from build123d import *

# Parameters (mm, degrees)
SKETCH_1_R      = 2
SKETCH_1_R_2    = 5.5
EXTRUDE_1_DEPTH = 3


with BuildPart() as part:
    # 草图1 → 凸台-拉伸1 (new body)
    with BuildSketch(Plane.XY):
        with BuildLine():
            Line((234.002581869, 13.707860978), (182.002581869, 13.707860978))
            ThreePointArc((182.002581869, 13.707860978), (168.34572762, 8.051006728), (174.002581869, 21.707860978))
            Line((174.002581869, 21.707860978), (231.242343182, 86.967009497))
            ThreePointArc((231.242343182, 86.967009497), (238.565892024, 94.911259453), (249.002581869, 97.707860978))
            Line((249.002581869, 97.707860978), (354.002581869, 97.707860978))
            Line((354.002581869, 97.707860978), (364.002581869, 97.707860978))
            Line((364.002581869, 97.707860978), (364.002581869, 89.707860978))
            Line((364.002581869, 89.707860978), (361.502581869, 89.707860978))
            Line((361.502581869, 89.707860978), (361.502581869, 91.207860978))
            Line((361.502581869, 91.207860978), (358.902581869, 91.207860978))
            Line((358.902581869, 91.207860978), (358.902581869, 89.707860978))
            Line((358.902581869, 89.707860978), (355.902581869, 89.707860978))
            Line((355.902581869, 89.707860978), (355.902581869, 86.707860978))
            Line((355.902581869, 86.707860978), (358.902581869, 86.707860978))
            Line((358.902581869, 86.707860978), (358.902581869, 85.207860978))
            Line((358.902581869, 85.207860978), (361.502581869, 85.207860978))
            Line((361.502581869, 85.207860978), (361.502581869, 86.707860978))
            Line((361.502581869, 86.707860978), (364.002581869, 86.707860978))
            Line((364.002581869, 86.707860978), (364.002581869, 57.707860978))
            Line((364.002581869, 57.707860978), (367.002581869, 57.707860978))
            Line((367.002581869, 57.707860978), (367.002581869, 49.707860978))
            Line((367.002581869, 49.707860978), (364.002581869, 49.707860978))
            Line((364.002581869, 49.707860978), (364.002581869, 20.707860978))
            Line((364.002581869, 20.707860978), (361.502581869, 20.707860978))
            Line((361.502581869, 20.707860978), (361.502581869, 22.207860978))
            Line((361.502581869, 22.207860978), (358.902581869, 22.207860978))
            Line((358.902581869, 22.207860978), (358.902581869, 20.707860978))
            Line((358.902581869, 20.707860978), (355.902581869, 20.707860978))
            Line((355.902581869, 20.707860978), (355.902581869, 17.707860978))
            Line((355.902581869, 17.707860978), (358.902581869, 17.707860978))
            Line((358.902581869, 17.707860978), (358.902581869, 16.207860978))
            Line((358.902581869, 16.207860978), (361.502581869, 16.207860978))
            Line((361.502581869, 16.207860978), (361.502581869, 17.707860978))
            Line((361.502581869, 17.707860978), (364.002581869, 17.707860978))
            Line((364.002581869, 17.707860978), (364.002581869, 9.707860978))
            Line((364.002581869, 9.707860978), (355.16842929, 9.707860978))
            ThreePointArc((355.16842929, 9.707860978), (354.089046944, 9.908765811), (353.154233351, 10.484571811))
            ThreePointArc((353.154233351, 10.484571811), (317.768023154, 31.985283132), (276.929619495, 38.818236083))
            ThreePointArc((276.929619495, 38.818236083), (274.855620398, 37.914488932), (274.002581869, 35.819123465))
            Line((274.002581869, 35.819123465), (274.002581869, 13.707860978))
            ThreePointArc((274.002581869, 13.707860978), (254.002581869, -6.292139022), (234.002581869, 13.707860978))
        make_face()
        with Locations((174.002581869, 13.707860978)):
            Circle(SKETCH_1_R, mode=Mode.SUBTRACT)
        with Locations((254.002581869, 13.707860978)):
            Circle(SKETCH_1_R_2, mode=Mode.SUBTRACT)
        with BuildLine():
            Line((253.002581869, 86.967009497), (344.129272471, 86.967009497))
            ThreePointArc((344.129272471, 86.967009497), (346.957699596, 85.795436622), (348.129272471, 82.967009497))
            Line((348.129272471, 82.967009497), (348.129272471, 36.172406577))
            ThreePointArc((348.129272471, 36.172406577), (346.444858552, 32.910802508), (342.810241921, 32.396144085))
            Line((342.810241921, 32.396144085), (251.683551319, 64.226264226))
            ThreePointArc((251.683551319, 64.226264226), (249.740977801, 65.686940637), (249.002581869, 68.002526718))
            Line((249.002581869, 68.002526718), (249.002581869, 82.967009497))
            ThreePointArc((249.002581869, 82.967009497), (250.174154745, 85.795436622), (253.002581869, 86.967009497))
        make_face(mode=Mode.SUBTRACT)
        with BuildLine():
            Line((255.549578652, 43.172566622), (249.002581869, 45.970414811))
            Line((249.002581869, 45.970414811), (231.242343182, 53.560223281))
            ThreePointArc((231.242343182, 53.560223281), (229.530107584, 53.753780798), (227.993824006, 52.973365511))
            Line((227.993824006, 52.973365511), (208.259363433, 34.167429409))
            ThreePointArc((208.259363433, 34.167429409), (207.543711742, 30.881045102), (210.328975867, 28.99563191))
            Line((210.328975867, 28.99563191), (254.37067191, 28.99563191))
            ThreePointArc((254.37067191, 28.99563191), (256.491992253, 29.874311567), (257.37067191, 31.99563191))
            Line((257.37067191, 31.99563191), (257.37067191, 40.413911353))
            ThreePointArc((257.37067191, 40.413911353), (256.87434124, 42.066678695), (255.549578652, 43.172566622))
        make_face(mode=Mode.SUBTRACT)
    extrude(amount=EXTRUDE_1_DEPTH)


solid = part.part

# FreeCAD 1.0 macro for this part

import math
import FreeCAD as App
import Part
import Sketcher

V = App.Vector
Q = App.Units.Quantity

doc = App.newDocument("Part")
body = doc.addObject("PartDesign::Body", "Body")

sketch1 = doc.addObject("Sketcher::SketchObject", "Sketch")
body.addObject(sketch1)
sketch1.AttachmentSupport = (doc.XY_Plane, [""])
sketch1.MapMode = "FlatFace"
sketch1.addGeometry(Part.LineSegment(V(182, 13.7, 0), V(234, 13.7, 0)), False)
sketch1.addGeometry(Part.ArcOfCircle(Part.Circle(V(254, 13.7, 0), V(0, 0, 1), 20), math.radians(180), math.radians(360)), False)
sketch1.addGeometry(Part.LineSegment(V(274, 13.7, 0), V(274, 35.8, 0)), False)
sketch1.addGeometry(Part.ArcOfCircle(Part.Circle(V(277, 35.8, 0), V(0, 0, 1), 3), math.radians(91), math.radians(180)), False)
sketch1.addGeometry(Part.ArcOfCircle(Part.Circle(V(279.6, -70.7, 0), V(0, 0, 1), 109.6), math.radians(48), math.radians(91)), False)
sketch1.addGeometry(Part.ArcOfCircle(Part.Circle(V(355.2, 12.7, 0), V(0, 0, 1), 3), math.radians(-132), math.radians(-90)), False)
sketch1.addGeometry(Part.LineSegment(V(355.2, 9.7, 0), V(364, 9.7, 0)), False)
sketch1.addGeometry(Part.LineSegment(V(364, 9.7, 0), V(364, 17.7, 0)), False)
sketch1.addGeometry(Part.LineSegment(V(364, 17.7, 0), V(361.5, 17.7, 0)), False)
sketch1.addGeometry(Part.LineSegment(V(361.5, 17.7, 0), V(361.5, 16.2, 0)), False)
sketch1.addGeometry(Part.LineSegment(V(361.5, 16.2, 0), V(358.9, 16.2, 0)), False)
sketch1.addGeometry(Part.LineSegment(V(358.9, 16.2, 0), V(358.9, 17.7, 0)), False)
sketch1.addGeometry(Part.LineSegment(V(358.9, 17.7, 0), V(355.9, 17.7, 0)), False)
sketch1.addGeometry(Part.LineSegment(V(355.9, 17.7, 0), V(355.9, 20.7, 0)), False)
sketch1.addGeometry(Part.LineSegment(V(355.9, 20.7, 0), V(358.9, 20.7, 0)), False)
sketch1.addGeometry(Part.LineSegment(V(358.9, 20.7, 0), V(358.9, 22.2, 0)), False)
sketch1.addGeometry(Part.LineSegment(V(358.9, 22.2, 0), V(361.5, 22.2, 0)), False)
sketch1.addGeometry(Part.LineSegment(V(361.5, 22.2, 0), V(361.5, 20.7, 0)), False)
sketch1.addGeometry(Part.LineSegment(V(361.5, 20.7, 0), V(364, 20.7, 0)), False)
sketch1.addGeometry(Part.LineSegment(V(364, 20.7, 0), V(364, 49.7, 0)), False)
sketch1.addGeometry(Part.LineSegment(V(364, 49.7, 0), V(367, 49.7, 0)), False)
sketch1.addGeometry(Part.LineSegment(V(367, 49.7, 0), V(367, 57.7, 0)), False)
sketch1.addGeometry(Part.LineSegment(V(367, 57.7, 0), V(364, 57.7, 0)), False)
sketch1.addGeometry(Part.LineSegment(V(364, 57.7, 0), V(364, 86.7, 0)), False)
sketch1.addGeometry(Part.LineSegment(V(364, 86.7, 0), V(361.5, 86.7, 0)), False)
sketch1.addGeometry(Part.LineSegment(V(361.5, 86.7, 0), V(361.5, 85.2, 0)), False)
sketch1.addGeometry(Part.LineSegment(V(361.5, 85.2, 0), V(358.9, 85.2, 0)), False)
sketch1.addGeometry(Part.LineSegment(V(358.9, 85.2, 0), V(358.9, 86.7, 0)), False)
sketch1.addGeometry(Part.LineSegment(V(358.9, 86.7, 0), V(355.9, 86.7, 0)), False)
sketch1.addGeometry(Part.LineSegment(V(355.9, 86.7, 0), V(355.9, 89.7, 0)), False)
sketch1.addGeometry(Part.LineSegment(V(355.9, 89.7, 0), V(358.9, 89.7, 0)), False)
sketch1.addGeometry(Part.LineSegment(V(358.9, 89.7, 0), V(358.9, 91.2, 0)), False)
sketch1.addGeometry(Part.LineSegment(V(358.9, 91.2, 0), V(361.5, 91.2, 0)), False)
sketch1.addGeometry(Part.LineSegment(V(361.5, 91.2, 0), V(361.5, 89.7, 0)), False)
sketch1.addGeometry(Part.LineSegment(V(361.5, 89.7, 0), V(364, 89.7, 0)), False)
sketch1.addGeometry(Part.LineSegment(V(364, 89.7, 0), V(364, 97.7, 0)), False)
sketch1.addGeometry(Part.LineSegment(V(364, 97.7, 0), V(249, 97.7, 0)), False)
sketch1.addGeometry(Part.ArcOfCircle(Part.Circle(V(248.6, 78.3, 0), V(0, 0, 1), 19.4), math.radians(89), math.radians(153)), False)
sketch1.addGeometry(Part.LineSegment(V(231.2, 87, 0), V(174, 21.7, 0)), False)
sketch1.addGeometry(Part.ArcOfCircle(Part.Circle(V(174, 13.7, 0), V(0, 0, 1), 8), math.radians(90), math.radians(360)), False)
sketch1.addGeometry(Part.Circle(V(254, 13.7, 0), V(0, 0, 1), 5.5), False)
sketch1.addGeometry(Part.Circle(V(174, 13.7, 0), V(0, 0, 1), 2), False)
sketch1.addGeometry(Part.ArcOfCircle(Part.Circle(V(254.4, 40.4, 0), V(0, 0, 1), 3), math.radians(0), math.radians(67)), False)
sketch1.addGeometry(Part.LineSegment(V(257.4, 40.4, 0), V(257.4, 32, 0)), False)
sketch1.addGeometry(Part.ArcOfCircle(Part.Circle(V(254.4, 32, 0), V(0, 0, 1), 3), math.radians(-90), math.radians(0)), False)
sketch1.addGeometry(Part.LineSegment(V(254.4, 29, 0), V(210.3, 29, 0)), False)
sketch1.addGeometry(Part.ArcOfCircle(Part.Circle(V(210.3, 32, 0), V(0, 0, 1), 3), math.radians(134), math.radians(270)), False)
sketch1.addGeometry(Part.LineSegment(V(208.3, 34.2, 0), V(228, 53, 0)), False)
sketch1.addGeometry(Part.ArcOfCircle(Part.Circle(V(230.1, 50.8, 0), V(0, 0, 1), 3), math.radians(67), math.radians(134)), False)
sketch1.addGeometry(Part.LineSegment(V(231.2, 53.6, 0), V(249, 46, 0)), False)
sketch1.addGeometry(Part.LineSegment(V(249, 46, 0), V(255.5, 43.2, 0)), False)
sketch1.addGeometry(Part.LineSegment(V(253, 87, 0), V(344.1, 87, 0)), False)
sketch1.addGeometry(Part.ArcOfCircle(Part.Circle(V(344.1, 83, 0), V(0, 0, 1), 4), math.radians(0), math.radians(90)), False)
sketch1.addGeometry(Part.LineSegment(V(348.1, 83, 0), V(348.1, 36.2, 0)), False)
sketch1.addGeometry(Part.ArcOfCircle(Part.Circle(V(344.1, 36.2, 0), V(0, 0, 1), 4), math.radians(-109), math.radians(0)), False)
sketch1.addGeometry(Part.LineSegment(V(342.8, 32.4, 0), V(251.7, 64.2, 0)), False)
sketch1.addGeometry(Part.ArcOfCircle(Part.Circle(V(253, 68, 0), V(0, 0, 1), 4), math.radians(-180), math.radians(-109)), False)
sketch1.addGeometry(Part.LineSegment(V(249, 68, 0), V(249, 83, 0)), False)
sketch1.addGeometry(Part.ArcOfCircle(Part.Circle(V(253, 83, 0), V(0, 0, 1), 4), math.radians(90), math.radians(180)), False)
sketch1.addConstraint(Sketcher.Constraint("Coincident", 0, 2, 1, 1))
sketch1.addConstraint(Sketcher.Constraint("Tangent", 1, 2, 2, 1))
sketch1.addConstraint(Sketcher.Constraint("Tangent", 2, 2, 3, 2))
sketch1.addConstraint(Sketcher.Constraint("Tangent", 3, 1, 4, 2))
sketch1.addConstraint(Sketcher.Constraint("Tangent", 4, 1, 5, 1))
sketch1.addConstraint(Sketcher.Constraint("Tangent", 5, 2, 6, 1))
sketch1.addConstraint(Sketcher.Constraint("Coincident", 6, 2, 7, 1))
sketch1.addConstraint(Sketcher.Constraint("Coincident", 7, 2, 8, 1))
sketch1.addConstraint(Sketcher.Constraint("Coincident", 8, 2, 9, 1))
sketch1.addConstraint(Sketcher.Constraint("Coincident", 9, 2, 10, 1))
sketch1.addConstraint(Sketcher.Constraint("Coincident", 10, 2, 11, 1))
sketch1.addConstraint(Sketcher.Constraint("Coincident", 11, 2, 12, 1))
sketch1.addConstraint(Sketcher.Constraint("Coincident", 12, 2, 13, 1))
sketch1.addConstraint(Sketcher.Constraint("Coincident", 13, 2, 14, 1))
sketch1.addConstraint(Sketcher.Constraint("Coincident", 14, 2, 15, 1))
sketch1.addConstraint(Sketcher.Constraint("Coincident", 15, 2, 16, 1))
sketch1.addConstraint(Sketcher.Constraint("Coincident", 16, 2, 17, 1))
sketch1.addConstraint(Sketcher.Constraint("Coincident", 17, 2, 18, 1))
sketch1.addConstraint(Sketcher.Constraint("Coincident", 18, 2, 19, 1))
sketch1.addConstraint(Sketcher.Constraint("Coincident", 19, 2, 20, 1))
sketch1.addConstraint(Sketcher.Constraint("Coincident", 20, 2, 21, 1))
sketch1.addConstraint(Sketcher.Constraint("Coincident", 21, 2, 22, 1))
sketch1.addConstraint(Sketcher.Constraint("Coincident", 22, 2, 23, 1))
sketch1.addConstraint(Sketcher.Constraint("Coincident", 23, 2, 24, 1))
sketch1.addConstraint(Sketcher.Constraint("Coincident", 24, 2, 25, 1))
sketch1.addConstraint(Sketcher.Constraint("Coincident", 25, 2, 26, 1))
sketch1.addConstraint(Sketcher.Constraint("Coincident", 26, 2, 27, 1))
sketch1.addConstraint(Sketcher.Constraint("Coincident", 27, 2, 28, 1))
sketch1.addConstraint(Sketcher.Constraint("Coincident", 28, 2, 29, 1))
sketch1.addConstraint(Sketcher.Constraint("Coincident", 29, 2, 30, 1))
sketch1.addConstraint(Sketcher.Constraint("Coincident", 30, 2, 31, 1))
sketch1.addConstraint(Sketcher.Constraint("Coincident", 31, 2, 32, 1))
sketch1.addConstraint(Sketcher.Constraint("Coincident", 32, 2, 33, 1))
sketch1.addConstraint(Sketcher.Constraint("Coincident", 33, 2, 34, 1))
sketch1.addConstraint(Sketcher.Constraint("Coincident", 34, 2, 35, 1))
sketch1.addConstraint(Sketcher.Constraint("Coincident", 35, 2, 36, 1))
sketch1.addConstraint(Sketcher.Constraint("Coincident", 36, 2, 37, 1))
sketch1.addConstraint(Sketcher.Constraint("Coincident", 37, 2, 38, 1))
sketch1.addConstraint(Sketcher.Constraint("Coincident", 38, 2, 39, 1))
sketch1.addConstraint(Sketcher.Constraint("Coincident", 39, 2, 0, 1))
sketch1.addConstraint(Sketcher.Constraint("Tangent", 42, 1, 43, 1))
sketch1.addConstraint(Sketcher.Constraint("Tangent", 43, 2, 44, 2))
sketch1.addConstraint(Sketcher.Constraint("Tangent", 44, 1, 45, 1))
sketch1.addConstraint(Sketcher.Constraint("Tangent", 45, 2, 46, 2))
sketch1.addConstraint(Sketcher.Constraint("Tangent", 46, 1, 47, 1))
sketch1.addConstraint(Sketcher.Constraint("Tangent", 47, 2, 48, 2))
sketch1.addConstraint(Sketcher.Constraint("Tangent", 48, 1, 49, 1))
sketch1.addConstraint(Sketcher.Constraint("Coincident", 49, 2, 50, 1))
sketch1.addConstraint(Sketcher.Constraint("Tangent", 50, 2, 42, 2))
sketch1.addConstraint(Sketcher.Constraint("Tangent", 51, 2, 52, 2))
sketch1.addConstraint(Sketcher.Constraint("Tangent", 52, 1, 53, 1))
sketch1.addConstraint(Sketcher.Constraint("Tangent", 53, 2, 54, 2))
sketch1.addConstraint(Sketcher.Constraint("Tangent", 54, 1, 55, 1))
sketch1.addConstraint(Sketcher.Constraint("Tangent", 55, 2, 56, 2))
sketch1.addConstraint(Sketcher.Constraint("Tangent", 56, 1, 57, 1))
sketch1.addConstraint(Sketcher.Constraint("Tangent", 57, 2, 58, 2))
sketch1.addConstraint(Sketcher.Constraint("Tangent", 58, 1, 51, 1))
sketch1.addConstraint(Sketcher.Constraint("Horizontal", 0))
sketch1.addConstraint(Sketcher.Constraint("Vertical", 2))
sketch1.addConstraint(Sketcher.Constraint("Horizontal", 6))
sketch1.addConstraint(Sketcher.Constraint("Vertical", 7))
sketch1.addConstraint(Sketcher.Constraint("Horizontal", 8))
sketch1.addConstraint(Sketcher.Constraint("Vertical", 9))
sketch1.addConstraint(Sketcher.Constraint("Horizontal", 10))
sketch1.addConstraint(Sketcher.Constraint("Vertical", 11))
sketch1.addConstraint(Sketcher.Constraint("Horizontal", 12))
sketch1.addConstraint(Sketcher.Constraint("Vertical", 13))
sketch1.addConstraint(Sketcher.Constraint("Horizontal", 14))
sketch1.addConstraint(Sketcher.Constraint("Vertical", 15))
sketch1.addConstraint(Sketcher.Constraint("Horizontal", 16))
sketch1.addConstraint(Sketcher.Constraint("Vertical", 17))
sketch1.addConstraint(Sketcher.Constraint("Horizontal", 18))
sketch1.addConstraint(Sketcher.Constraint("Vertical", 19))
sketch1.addConstraint(Sketcher.Constraint("Horizontal", 20))
sketch1.addConstraint(Sketcher.Constraint("Vertical", 21))
sketch1.addConstraint(Sketcher.Constraint("Horizontal", 22))
sketch1.addConstraint(Sketcher.Constraint("Vertical", 23))
sketch1.addConstraint(Sketcher.Constraint("Horizontal", 24))
sketch1.addConstraint(Sketcher.Constraint("Vertical", 25))
sketch1.addConstraint(Sketcher.Constraint("Horizontal", 26))
sketch1.addConstraint(Sketcher.Constraint("Vertical", 27))
sketch1.addConstraint(Sketcher.Constraint("Horizontal", 28))
sketch1.addConstraint(Sketcher.Constraint("Vertical", 29))
sketch1.addConstraint(Sketcher.Constraint("Horizontal", 30))
sketch1.addConstraint(Sketcher.Constraint("Vertical", 31))
sketch1.addConstraint(Sketcher.Constraint("Horizontal", 32))
sketch1.addConstraint(Sketcher.Constraint("Vertical", 33))
sketch1.addConstraint(Sketcher.Constraint("Horizontal", 34))
sketch1.addConstraint(Sketcher.Constraint("Vertical", 35))
sketch1.addConstraint(Sketcher.Constraint("Horizontal", 36))
sketch1.addConstraint(Sketcher.Constraint("Vertical", 43))
sketch1.addConstraint(Sketcher.Constraint("Horizontal", 45))
sketch1.addConstraint(Sketcher.Constraint("Horizontal", 51))
sketch1.addConstraint(Sketcher.Constraint("Vertical", 53))
sketch1.addConstraint(Sketcher.Constraint("Vertical", 57))
sketch1.addConstraint(Sketcher.Constraint("Coincident", 40, 3, 1, 3))
sketch1.addConstraint(Sketcher.Constraint("Coincident", 41, 3, 39, 3))
sketch1.addConstraint(Sketcher.Constraint("Equal", 3, 5))
sketch1.addConstraint(Sketcher.Constraint("Equal", 5, 42))
sketch1.addConstraint(Sketcher.Constraint("Equal", 42, 44))
sketch1.addConstraint(Sketcher.Constraint("Equal", 44, 46))
sketch1.addConstraint(Sketcher.Constraint("Equal", 46, 48))
sketch1.addConstraint(Sketcher.Constraint("Equal", 52, 54))
sketch1.addConstraint(Sketcher.Constraint("Equal", 54, 56))
sketch1.addConstraint(Sketcher.Constraint("Equal", 56, 58))
sketch1.addConstraint(Sketcher.Constraint("Parallel", 49, 50))
sketch1.addConstraint(Sketcher.Constraint("Horizontal", 1, 3, 39, 3))
sketch1.addConstraint(Sketcher.Constraint("Horizontal", 41, 3, 0, 2))
sketch1.addConstraint(Sketcher.Constraint("Horizontal", 8, 2, 11, 2))
sketch1.addConstraint(Sketcher.Constraint("Horizontal", 14, 2, 17, 2))
sketch1.addConstraint(Sketcher.Constraint("Horizontal", 24, 2, 27, 2))
sketch1.addConstraint(Sketcher.Constraint("Horizontal", 30, 2, 33, 2))
sketch1.addConstraint(Sketcher.Constraint("Horizontal", 37, 2, 51, 2))
sketch1.addConstraint(Sketcher.Constraint("Vertical", 11, 2, 14, 2))
sketch1.addConstraint(Sketcher.Constraint("Vertical", 9, 2, 16, 2))
sketch1.addConstraint(Sketcher.Constraint("Vertical", 7, 2, 18, 2))
sketch1.addConstraint(Sketcher.Constraint("Vertical", 19, 2, 22, 2))
sketch1.addConstraint(Sketcher.Constraint("Vertical", 17, 2, 24, 2))
sketch1.addConstraint(Sketcher.Constraint("Vertical", 15, 2, 26, 2))
sketch1.addConstraint(Sketcher.Constraint("Vertical", 13, 2, 28, 2))
sketch1.addConstraint(Sketcher.Constraint("Vertical", 27, 2, 30, 2))
sketch1.addConstraint(Sketcher.Constraint("Vertical", 25, 2, 32, 2))
sketch1.addConstraint(Sketcher.Constraint("Vertical", 23, 2, 34, 2))
sketch1.addConstraint(Sketcher.Constraint("Vertical", 41, 3, 38, 2))
sketch1.addConstraint(Sketcher.Constraint("Vertical", 37, 2, 48, 1))
sketch1.addConstraint(Sketcher.Constraint("Vertical", 36, 2, 49, 2))
sketch1.addConstraint(Sketcher.Constraint("Vertical", 49, 2, 56, 1))
sketch1.addConstraint(Sketcher.Constraint("Equal", 14, 20))
sketch1.addConstraint(Sketcher.Constraint("Equal", 30, 13))
sketch1.addConstraint(Sketcher.Constraint("Equal", 11, 15))
sketch1.addConstraint(Sketcher.Constraint("Equal", 7, 21))
sketch1.addConstraint(Sketcher.Constraint("Equal", 19, 23))
sketch1.addConstraint(Sketcher.Constraint("Equal", 17, 25))
sketch1.addConstraint(Sketcher.Constraint("Equal", 13, 29))
sketch1.addConstraint(Sketcher.Constraint("Equal", 27, 31))
sketch1.addConstraint(Sketcher.Constraint("Equal", 21, 35))
sketch1.addConstraint(Sketcher.Constraint("Diameter", 40, Q("11 mm")))
sketch1.addConstraint(Sketcher.Constraint("Diameter", 41, Q("4 mm")))
sketch1.addConstraint(Sketcher.Constraint("Radius", 1, Q("20 mm")))
sketch1.addConstraint(Sketcher.Constraint("Radius", 3, Q("3 mm")))
sketch1.addConstraint(Sketcher.Constraint("Radius", 39, Q("8 mm")))
sketch1.addConstraint(Sketcher.Constraint("Radius", 52, Q("4 mm")))
sketch1.addConstraint(Sketcher.Constraint("DistanceX", 0, 1, 0, 2, Q("52 mm")))
sketch1.addConstraint(Sketcher.Constraint("DistanceX", 12, 2, 12, 1, Q("3 mm")))
sketch1.addConstraint(Sketcher.Constraint("DistanceX", 36, 2, 36, 1, Q("115 mm")))
sketch1.addConstraint(Sketcher.Constraint("DistanceY", 7, 1, 7, 2, Q("8 mm")))
sketch1.addConstraint(Sketcher.Constraint("DistanceY", 19, 1, 19, 2, Q("29 mm")))
sketch1.addConstraint(Sketcher.Constraint("DistanceX", 8, 2, 8, 1, Q("2.5 mm")))
sketch1.addConstraint(Sketcher.Constraint("DistanceX", 10, 2, 10, 1, Q("2.6 mm")))
sketch1.addConstraint(Sketcher.Constraint("DistanceY", 9, 2, 9, 1, Q("1.5 mm")))
sketch1.addConstraint(Sketcher.Constraint("Radius", 4, Q("109.562289 mm")))
sketch1.addConstraint(Sketcher.Constraint("Radius", 37, Q("19.406454 mm")))
sketch1.addConstraint(Sketcher.Constraint("Distance", 55, Q("96.525801 mm")))
sketch1.addConstraint(Sketcher.Constraint("DistanceX", 51, 1, 51, 2, Q("91.126691 mm")))
sketch1.addConstraint(Sketcher.Constraint("DistanceY", 43, 2, 43, 1, Q("8.418279 mm")))
sketch1.addConstraint(Sketcher.Constraint("Distance", 50, Q("7.11977 mm")))
sketch1.addConstraint(Sketcher.Constraint("DistanceX", 6, 1, 6, 2, Q("8.834153 mm")))
sketch1.addConstraint(Sketcher.Constraint("DistanceX", 45, 2, 45, 1, Q("44.041696 mm")))
sketch1.addConstraint(Sketcher.Constraint("DistanceY", 2, 1, 2, 2, Q("22.111262 mm")))
sketch1.addConstraint(Sketcher.Constraint("DistanceY", 53, 2, 53, 1, Q("46.794603 mm")))
sketch1.addConstraint(Sketcher.Constraint("DistanceX", -1, 1, 1, 3, Q("254.002582 mm")))
sketch1.addConstraint(Sketcher.Constraint("DistanceY", -1, 1, 1, 3, Q("13.707861 mm")))
sketch1.addConstraint(Sketcher.Constraint("DistanceX", -1, 1, 4, 3, Q("279.594261 mm")))
sketch1.addConstraint(Sketcher.Constraint("DistanceX", -1, 1, 5, 3, Q("355.168429 mm")))
sketch1.addConstraint(Sketcher.Constraint("DistanceX", -1, 1, 42, 3, Q("254.370672 mm")))
sketch1.addConstraint(Sketcher.Constraint("DistanceY", -1, 1, 42, 3, Q("40.413911 mm")))
sketch1.addConstraint(Sketcher.Constraint("DistanceY", -1, 1, 48, 3, Q("50.801568 mm")))
sketch1.addConstraint(Sketcher.Constraint("DistanceY", -1, 1, 52, 3, Q("82.967009 mm")))
pad1 = doc.addObject("PartDesign::Pad", "Pad")
body.addObject(pad1)
pad1.Profile = sketch1
pad1.Length = 3

doc.recompute()
